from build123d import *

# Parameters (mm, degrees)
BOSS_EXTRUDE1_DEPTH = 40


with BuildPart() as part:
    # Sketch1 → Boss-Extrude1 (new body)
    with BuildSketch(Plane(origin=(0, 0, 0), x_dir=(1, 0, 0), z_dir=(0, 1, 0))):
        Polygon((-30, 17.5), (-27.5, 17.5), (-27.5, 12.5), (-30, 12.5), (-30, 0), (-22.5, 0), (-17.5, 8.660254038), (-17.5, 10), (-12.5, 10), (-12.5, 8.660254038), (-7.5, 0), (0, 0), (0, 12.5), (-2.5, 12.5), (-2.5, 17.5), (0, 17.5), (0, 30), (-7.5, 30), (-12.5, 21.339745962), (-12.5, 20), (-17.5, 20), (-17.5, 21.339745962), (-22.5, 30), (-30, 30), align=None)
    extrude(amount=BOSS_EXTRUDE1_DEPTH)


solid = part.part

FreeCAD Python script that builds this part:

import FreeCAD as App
import Part
import Sketcher
from FreeCAD import Vector
Q = App.Units.Quantity

doc = App.newDocument("Part")
params = doc.addObject("Spreadsheet::Sheet", "Params")
for row, (alias, value) in enumerate([
    ("sketch1_width", "5 mm"),
    ("sketch1_length", "10 mm"),
    ("sketch1_width2", "2.5 mm"),
    ("sketch1_width3", "7.5 mm"),
    ("sketch1_height", "12.5 mm"),
    ("pad1_length", "40 mm"),
], start=1):
    params.set(f"A{row}", alias)
    params.set(f"B{row}", "=" + value)
    params.setAlias(f"B{row}", alias)

body = doc.addObject("PartDesign::Body", "Body")

# Sketch on XZ plane
sketch1 = body.newObject("Sketcher::SketchObject", "Sketch")
sketch1.AttachmentSupport = (doc.getObject("XZ_Plane"), [""])
sketch1.MapMode = "FlatFace"
sketch1.addGeometry(Part.LineSegment(Vector(-30, -17.5, 0), Vector(-27.5, -17.5, 0)), False)
sketch1.addGeometry(Part.LineSegment(Vector(-27.5, -17.5, 0), Vector(-27.5, -12.5, 0)), False)
sketch1.addGeometry(Part.LineSegment(Vector(-27.5, -12.5, 0), Vector(-30, -12.5, 0)), False)
sketch1.addGeometry(Part.LineSegment(Vector(-30, -12.5, 0), Vector(-30, 0, 0)), False)
sketch1.addGeometry(Part.LineSegment(Vector(-30, 0, 0), Vector(-22.5, 0, 0)), False)
sketch1.addGeometry(Part.LineSegment(Vector(-22.5, 0, 0), Vector(-17.5, -8.7, 0)), False)
sketch1.addGeometry(Part.LineSegment(Vector(-17.5, -8.7, 0), Vector(-17.5, -10, 0)), False)
sketch1.addGeometry(Part.LineSegment(Vector(-17.5, -10, 0), Vector(-12.5, -10, 0)), False)
sketch1.addGeometry(Part.LineSegment(Vector(-12.5, -10, 0), Vector(-12.5, -8.7, 0)), False)
sketch1.addGeometry(Part.LineSegment(Vector(-12.5, -8.7, 0), Vector(-7.5, 0, 0)), False)
sketch1.addGeometry(Part.LineSegment(Vector(-7.5, 0, 0), Vector(0, 0, 0)), False)
sketch1.addGeometry(Part.LineSegment(Vector(0, 0, 0), Vector(0, -12.5, 0)), False)
sketch1.addGeometry(Part.LineSegment(Vector(0, -12.5, 0), Vector(-2.5, -12.5, 0)), False)
sketch1.addGeometry(Part.LineSegment(Vector(-2.5, -12.5, 0), Vector(-2.5, -17.5, 0)), False)
sketch1.addGeometry(Part.LineSegment(Vector(-2.5, -17.5, 0), Vector(0, -17.5, 0)), False)
sketch1.addGeometry(Part.LineSegment(Vector(0, -17.5, 0), Vector(0, -30, 0)), False)
sketch1.addGeometry(Part.LineSegment(Vector(0, -30, 0), Vector(-7.5, -30, 0)), False)
sketch1.addGeometry(Part.LineSegment(Vector(-7.5, -30, 0), Vector(-12.5, -21.3, 0)), False)
sketch1.addGeometry(Part.LineSegment(Vector(-12.5, -21.3, 0), Vector(-12.5, -20, 0)), False)
sketch1.addGeometry(Part.LineSegment(Vector(-12.5, -20, 0), Vector(-17.5, -20, 0)), False)
sketch1.addGeometry(Part.LineSegment(Vector(-17.5, -20, 0), Vector(-17.5, -21.3, 0)), False)
sketch1.addGeometry(Part.LineSegment(Vector(-17.5, -21.3, 0), Vector(-22.5, -30, 0)), False)
sketch1.addGeometry(Part.LineSegment(Vector(-22.5, -30, 0), Vector(-30, -30, 0)), False)
sketch1.addGeometry(Part.LineSegment(Vector(-30, -30, 0), Vector(-30, -17.5, 0)), False)
sketch1.addConstraint(Sketcher.Constraint("Coincident", 0, 2, 1, 1))
sketch1.addConstraint(Sketcher.Constraint("Coincident", 1, 2, 2, 1))
sketch1.addConstraint(Sketcher.Constraint("Coincident", 2, 2, 3, 1))
sketch1.addConstraint(Sketcher.Constraint("Coincident", 3, 2, 4, 1))
sketch1.addConstraint(Sketcher.Constraint("Coincident", 4, 2, 5, 1))
sketch1.addConstraint(Sketcher.Constraint("Coincident", 5, 2, 6, 1))
sketch1.addConstraint(Sketcher.Constraint("Coincident", 6, 2, 7, 1))
sketch1.addConstraint(Sketcher.Constraint("Coincident", 7, 2, 8, 1))
sketch1.addConstraint(Sketcher.Constraint("Coincident", 8, 2, 9, 1))
sketch1.addConstraint(Sketcher.Constraint("Coincident", 9, 2, 10, 1))
sketch1.addConstraint(Sketcher.Constraint("Coincident", 10, 2, 11, 1))
sketch1.addConstraint(Sketcher.Constraint("Coincident", 11, 2, 12, 1))
sketch1.addConstraint(Sketcher.Constraint("Coincident", 12, 2, 13, 1))
sketch1.addConstraint(Sketcher.Constraint("Coincident", 13, 2, 14, 1))
sketch1.addConstraint(Sketcher.Constraint("Coincident", 14, 2, 15, 1))
sketch1.addConstraint(Sketcher.Constraint("Coincident", 15, 2, 16, 1))
sketch1.addConstraint(Sketcher.Constraint("Coincident", 16, 2, 17, 1))
sketch1.addConstraint(Sketcher.Constraint("Coincident", 17, 2, 18, 1))
sketch1.addConstraint(Sketcher.Constraint("Coincident", 18, 2, 19, 1))
sketch1.addConstraint(Sketcher.Constraint("Coincident", 19, 2, 20, 1))
sketch1.addConstraint(Sketcher.Constraint("Coincident", 20, 2, 21, 1))
sketch1.addConstraint(Sketcher.Constraint("Coincident", 21, 2, 22, 1))
sketch1.addConstraint(Sketcher.Constraint("Coincident", 22, 2, 23, 1))
sketch1.addConstraint(Sketcher.Constraint("Coincident", 23, 2, 0, 1))
sketch1.addConstraint(Sketcher.Constraint("Horizontal", 0))
sketch1.addConstraint(Sketcher.Constraint("Vertical", 1))
sketch1.addConstraint(Sketcher.Constraint("Horizontal", 2))
sketch1.addConstraint(Sketcher.Constraint("Vertical", 3))
sketch1.addConstraint(Sketcher.Constraint("Horizontal", 4))
sketch1.addConstraint(Sketcher.Constraint("Vertical", 6))
sketch1.addConstraint(Sketcher.Constraint("Horizontal", 7))
sketch1.addConstraint(Sketcher.Constraint("Vertical", 8))
sketch1.addConstraint(Sketcher.Constraint("Horizontal", 10))
sketch1.addConstraint(Sketcher.Constraint("Vertical", 11))
sketch1.addConstraint(Sketcher.Constraint("Horizontal", 12))
sketch1.addConstraint(Sketcher.Constraint("Vertical", 13))
sketch1.addConstraint(Sketcher.Constraint("Horizontal", 14))
sketch1.addConstraint(Sketcher.Constraint("Vertical", 15))
sketch1.addConstraint(Sketcher.Constraint("Horizontal", 16))
sketch1.addConstraint(Sketcher.Constraint("Vertical", 18))
sketch1.addConstraint(Sketcher.Constraint("Horizontal", 19))
sketch1.addConstraint(Sketcher.Constraint("Vertical", 20))
sketch1.addConstraint(Sketcher.Constraint("Horizontal", 22))
sketch1.addConstraint(Sketcher.Constraint("Vertical", 23))
sketch1.addConstraint(Sketcher.Constraint("Coincident", 10, 2, -1, 1))
sketch1.addConstraint(Sketcher.Constraint("PointOnObject", 3, 2, -1))
sketch1.addConstraint(Sketcher.Constraint("PointOnObject", 14, 2, -2))
sketch1.addConstraint(Sketcher.Constraint("Parallel", 5, 17))
sketch1.addConstraint(Sketcher.Constraint("Parallel", 9, 21))
sketch1.addConstraint(Sketcher.Constraint("Horizontal", 5, 2, 8, 2))
sketch1.addConstraint(Sketcher.Constraint("Horizontal", 2, 2, 11, 2))
sketch1.addConstraint(Sketcher.Constraint("Horizontal", 0, 2, 13, 2))
sketch1.addConstraint(Sketcher.Constraint("Horizontal", 17, 2, 20, 2))
sketch1.addConstraint(Sketcher.Constraint("Horizontal", 16, 2, 21, 2))
sketch1.addConstraint(Sketcher.Constraint("Vertical", 9, 2, 16, 2))
sketch1.addConstraint(Sketcher.Constraint("Vertical", 8, 2, 17, 2))
sketch1.addConstraint(Sketcher.Constraint("Vertical", 6, 2, 19, 2))
sketch1.addConstraint(Sketcher.Constraint("Vertical", 4, 2, 21, 2))
sketch1.addConstraint(Sketcher.Constraint("Vertical", 3, 2, 22, 2))
sketch1.addConstraint(Sketcher.Constraint("Equal", 4, 10))
sketch1.addConstraint(Sketcher.Constraint("Equal", 2, 12))
sketch1.addConstraint(Sketcher.Constraint("Equal", 19, 1))
sketch1.addConstraint(Sketcher.Constraint("Equal", 11, 15))
sketch1.addConstraint(Sketcher.Constraint("Equal", 8, 18))
sketch1.addConstraint(Sketcher.Constraint("DistanceX", 7, 1, 7, 2, 5.0))
sketch1.addConstraint(Sketcher.Constraint("Angle", 5, Q("-60 deg")))
sketch1.addConstraint(Sketcher.Constraint("Distance", 5, 10.0))
sketch1.addConstraint(Sketcher.Constraint("DistanceX", 0, 1, 0, 2, 2.5))
sketch1.addConstraint(Sketcher.Constraint("DistanceX", 4, 1, 4, 2, 7.5))
sketch1.addConstraint(Sketcher.Constraint("DistanceY", 3, 1, 3, 2, 12.5))
sketch1.addConstraint(Sketcher.Constraint("DistanceY", 6, 2, -1, 1, 10.0))
sketch1.setExpression("Constraints[64]", "Params.sketch1_width")
sketch1.setExpression("Constraints[66]", "Params.sketch1_length")
sketch1.setExpression("Constraints[67]", "Params.sketch1_width2")
sketch1.setExpression("Constraints[68]", "Params.sketch1_width3")
sketch1.setExpression("Constraints[69]", "Params.sketch1_height")
pad1 = body.newObject("PartDesign::Pad", "Pad")
pad1.Profile = sketch1
pad1.setExpression("Length", "Params.pad1_length")
pad1.Reversed = True

doc.recompute()
